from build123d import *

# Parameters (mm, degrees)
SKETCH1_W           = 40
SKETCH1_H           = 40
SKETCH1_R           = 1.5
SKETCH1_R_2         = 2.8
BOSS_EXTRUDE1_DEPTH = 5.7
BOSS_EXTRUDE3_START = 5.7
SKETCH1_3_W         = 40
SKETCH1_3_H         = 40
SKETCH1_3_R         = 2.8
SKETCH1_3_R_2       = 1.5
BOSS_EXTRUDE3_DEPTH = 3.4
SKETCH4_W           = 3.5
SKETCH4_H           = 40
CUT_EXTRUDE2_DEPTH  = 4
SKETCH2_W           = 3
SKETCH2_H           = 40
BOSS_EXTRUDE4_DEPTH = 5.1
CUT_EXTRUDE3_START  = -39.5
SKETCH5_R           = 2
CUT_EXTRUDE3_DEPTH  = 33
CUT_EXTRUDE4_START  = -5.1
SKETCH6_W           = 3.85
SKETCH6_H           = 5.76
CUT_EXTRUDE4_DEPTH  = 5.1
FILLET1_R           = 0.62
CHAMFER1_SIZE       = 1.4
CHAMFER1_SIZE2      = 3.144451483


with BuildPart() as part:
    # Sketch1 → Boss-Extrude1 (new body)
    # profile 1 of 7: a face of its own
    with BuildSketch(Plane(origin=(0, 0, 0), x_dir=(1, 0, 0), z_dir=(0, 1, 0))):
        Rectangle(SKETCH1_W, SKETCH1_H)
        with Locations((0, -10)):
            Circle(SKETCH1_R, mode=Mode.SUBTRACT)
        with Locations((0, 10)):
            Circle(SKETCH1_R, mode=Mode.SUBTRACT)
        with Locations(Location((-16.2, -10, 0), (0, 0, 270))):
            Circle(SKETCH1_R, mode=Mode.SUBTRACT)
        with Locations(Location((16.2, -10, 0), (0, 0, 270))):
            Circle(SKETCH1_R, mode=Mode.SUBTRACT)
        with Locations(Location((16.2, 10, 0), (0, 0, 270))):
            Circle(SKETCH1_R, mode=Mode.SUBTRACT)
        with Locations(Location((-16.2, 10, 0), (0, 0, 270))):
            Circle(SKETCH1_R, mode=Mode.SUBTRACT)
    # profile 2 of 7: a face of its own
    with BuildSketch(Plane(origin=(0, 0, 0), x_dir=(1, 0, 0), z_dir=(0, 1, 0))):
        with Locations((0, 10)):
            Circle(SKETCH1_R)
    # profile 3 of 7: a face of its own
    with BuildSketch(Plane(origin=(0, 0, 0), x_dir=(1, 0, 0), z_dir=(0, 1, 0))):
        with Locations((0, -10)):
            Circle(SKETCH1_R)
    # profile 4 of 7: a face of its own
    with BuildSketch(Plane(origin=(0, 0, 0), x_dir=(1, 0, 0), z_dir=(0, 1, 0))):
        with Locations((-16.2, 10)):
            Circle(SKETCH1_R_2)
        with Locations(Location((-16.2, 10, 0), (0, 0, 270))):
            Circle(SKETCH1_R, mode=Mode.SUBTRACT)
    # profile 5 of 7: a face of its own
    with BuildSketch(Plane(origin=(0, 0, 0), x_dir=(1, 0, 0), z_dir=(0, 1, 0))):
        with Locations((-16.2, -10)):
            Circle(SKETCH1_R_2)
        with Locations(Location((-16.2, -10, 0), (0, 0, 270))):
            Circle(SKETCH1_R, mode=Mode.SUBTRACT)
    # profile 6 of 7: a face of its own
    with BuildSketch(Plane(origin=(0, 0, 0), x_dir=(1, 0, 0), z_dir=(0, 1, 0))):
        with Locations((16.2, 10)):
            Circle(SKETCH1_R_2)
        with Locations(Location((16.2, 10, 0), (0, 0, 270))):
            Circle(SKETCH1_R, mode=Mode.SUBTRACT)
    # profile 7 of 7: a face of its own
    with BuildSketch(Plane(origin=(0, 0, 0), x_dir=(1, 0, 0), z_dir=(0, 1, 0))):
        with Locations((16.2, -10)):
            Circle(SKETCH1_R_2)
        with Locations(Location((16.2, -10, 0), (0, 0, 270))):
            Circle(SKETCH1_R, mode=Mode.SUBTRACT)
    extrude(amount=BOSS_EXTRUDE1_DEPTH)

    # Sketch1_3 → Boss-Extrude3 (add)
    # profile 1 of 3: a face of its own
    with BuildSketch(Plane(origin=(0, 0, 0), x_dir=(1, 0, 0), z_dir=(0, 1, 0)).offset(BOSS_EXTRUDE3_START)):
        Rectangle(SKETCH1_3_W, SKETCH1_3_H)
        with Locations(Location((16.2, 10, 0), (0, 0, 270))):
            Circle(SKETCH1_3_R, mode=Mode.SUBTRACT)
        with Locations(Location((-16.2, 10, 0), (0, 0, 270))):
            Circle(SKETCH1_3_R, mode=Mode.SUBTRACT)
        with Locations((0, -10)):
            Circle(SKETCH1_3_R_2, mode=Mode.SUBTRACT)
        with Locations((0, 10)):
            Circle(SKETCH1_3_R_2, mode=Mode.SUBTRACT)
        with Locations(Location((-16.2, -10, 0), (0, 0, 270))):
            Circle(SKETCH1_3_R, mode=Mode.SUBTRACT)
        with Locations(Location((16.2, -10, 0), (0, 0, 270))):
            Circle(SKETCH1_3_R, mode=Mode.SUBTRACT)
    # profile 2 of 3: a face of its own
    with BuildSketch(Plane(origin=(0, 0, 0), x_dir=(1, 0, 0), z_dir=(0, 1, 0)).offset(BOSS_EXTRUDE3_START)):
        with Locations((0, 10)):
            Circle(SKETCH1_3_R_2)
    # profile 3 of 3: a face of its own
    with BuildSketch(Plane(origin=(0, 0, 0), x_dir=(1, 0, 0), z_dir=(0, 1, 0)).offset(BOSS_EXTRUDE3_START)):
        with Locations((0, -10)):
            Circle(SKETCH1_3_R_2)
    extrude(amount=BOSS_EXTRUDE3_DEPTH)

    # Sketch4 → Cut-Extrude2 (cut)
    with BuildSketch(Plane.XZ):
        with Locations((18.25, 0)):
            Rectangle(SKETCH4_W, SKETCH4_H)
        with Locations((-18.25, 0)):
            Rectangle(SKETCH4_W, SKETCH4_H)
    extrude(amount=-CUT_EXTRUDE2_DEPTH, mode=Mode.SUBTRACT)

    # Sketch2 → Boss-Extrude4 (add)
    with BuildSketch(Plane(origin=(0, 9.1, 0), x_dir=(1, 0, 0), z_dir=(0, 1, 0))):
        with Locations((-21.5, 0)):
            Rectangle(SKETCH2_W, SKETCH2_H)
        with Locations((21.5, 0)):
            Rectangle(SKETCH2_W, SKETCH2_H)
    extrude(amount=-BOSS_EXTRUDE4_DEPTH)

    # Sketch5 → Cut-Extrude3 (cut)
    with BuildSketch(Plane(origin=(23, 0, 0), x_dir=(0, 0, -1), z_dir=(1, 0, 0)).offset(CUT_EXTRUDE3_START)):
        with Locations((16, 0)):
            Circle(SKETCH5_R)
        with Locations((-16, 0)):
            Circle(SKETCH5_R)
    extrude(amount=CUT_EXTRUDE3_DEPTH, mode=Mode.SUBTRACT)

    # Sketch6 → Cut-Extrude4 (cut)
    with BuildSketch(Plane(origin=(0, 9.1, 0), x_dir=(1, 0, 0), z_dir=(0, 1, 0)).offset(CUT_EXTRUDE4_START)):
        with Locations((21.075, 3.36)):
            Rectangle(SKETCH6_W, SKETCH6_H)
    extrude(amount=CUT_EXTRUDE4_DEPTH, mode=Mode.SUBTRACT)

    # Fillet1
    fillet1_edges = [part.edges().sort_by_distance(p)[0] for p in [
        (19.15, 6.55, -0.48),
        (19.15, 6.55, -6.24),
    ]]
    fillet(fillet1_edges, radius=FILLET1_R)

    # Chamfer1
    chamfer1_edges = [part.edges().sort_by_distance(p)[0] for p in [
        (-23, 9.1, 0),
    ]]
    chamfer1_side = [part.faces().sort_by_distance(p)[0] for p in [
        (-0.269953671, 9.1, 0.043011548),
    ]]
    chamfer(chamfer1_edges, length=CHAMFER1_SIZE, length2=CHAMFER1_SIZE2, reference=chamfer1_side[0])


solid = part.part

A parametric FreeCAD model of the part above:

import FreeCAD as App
import Part
import Sketcher
Q = App.Units.Quantity


def edges_at(feature, points):
    """Names of the edges that pass closest to the given points."""
    edges = feature.Shape.Edges
    near = lambda p: min(range(len(edges)), key=lambda i: edges[i].distToShape(Part.Vertex(*p))[0])
    return sorted({f"Edge{near(p) + 1}" for p in points})


def add_polygon(sketch, points):
    """Adds a closed chain of lines whose ends are joined by coincident constraints."""
    first, n = sketch.GeometryCount, len(points)
    for a, b in zip(points, points[1:] + points[:1]):
        sketch.addGeometry(Part.LineSegment(App.Vector(*a, 0), App.Vector(*b, 0)), False)
    for i in range(n):
        sketch.addConstraint(Sketcher.Constraint("Coincident", first + i, 2, first + (i + 1) % n, 1))

doc = App.newDocument("Part")
body = doc.addObject("PartDesign::Body", "Body")

sketch1 = body.newObject("Sketcher::SketchObject", "Sketch")
sketch1.AttachmentSupport = (doc.getObject("XZ_Plane"), [""])
sketch1.MapMode = "FlatFace"
add_polygon(sketch1, [(-20, -20), (-20, 20), (20, 20), (20, -20)])
sketch1.addGeometry(Part.Circle(App.Vector(-16.2, 10, 0), App.Vector(0, 0, 1), 1.5), False)
sketch1.addGeometry(Part.Circle(App.Vector(16.2, 10, 0), App.Vector(0, 0, 1), 1.5), False)
sketch1.addGeometry(Part.Circle(App.Vector(-16.2, -10, 0), App.Vector(0, 0, 1), 1.5), False)
sketch1.addGeometry(Part.Circle(App.Vector(16.2, -10, 0), App.Vector(0, 0, 1), 1.5), False)
sketch1.addConstraint([
    Sketcher.Constraint("Vertical", 0),
    Sketcher.Constraint("Horizontal", 1),
    Sketcher.Constraint("Vertical", 2),
    Sketcher.Constraint("Horizontal", 3),
    Sketcher.Constraint("Equal", 4, 5),
    Sketcher.Constraint("Equal", 5, 6),
    Sketcher.Constraint("Equal", 6, 7),
    Sketcher.Constraint("Symmetric", 5, 3, 6, 3, -1, 1),
    Sketcher.Constraint("Symmetric", 4, 3, 7, 3, -1, 1),
    Sketcher.Constraint("Symmetric", 0, 2, 2, 2, -1, 1),
    Sketcher.Constraint("Symmetric", 4, 3, 5, 3, -2),
    Sketcher.Constraint("Equal", 3, 0),
    Sketcher.Constraint("Diameter", 4, Q("3 mm")),
    Sketcher.Constraint("DistanceX", 1, 1, 1, 2, Q("40 mm")),
    Sketcher.Constraint("DistanceY", -1, 1, 4, 3, Q("10 mm")),
    Sketcher.Constraint("DistanceX", 4, 3, -1, 1, Q("16.2 mm")),
])
pad1 = body.newObject("PartDesign::Pad", "Pad")
pad1.Profile = sketch1
pad1.Length = 5.7
pad1.Reversed = True

sketch2 = body.newObject("Sketcher::SketchObject", "Sketch001")
sketch2.AttachmentSupport = (doc.getObject("XZ_Plane"), [""])
sketch2.MapMode = "FlatFace"
sketch2.AttachmentOffset = App.Placement(App.Vector(0, 0, -5.7), App.Rotation())
add_polygon(sketch2, [(-20, -20), (-20, 20), (20, 20), (20, -20)])
sketch2.addGeometry(Part.Circle(App.Vector(-16.2, 10, 0), App.Vector(0, 0, 1), 2.8), False)
sketch2.addGeometry(Part.Circle(App.Vector(16.2, 10, 0), App.Vector(0, 0, 1), 2.8), False)
sketch2.addGeometry(Part.Circle(App.Vector(-16.2, -10, 0), App.Vector(0, 0, 1), 2.8), False)
sketch2.addGeometry(Part.Circle(App.Vector(16.2, -10, 0), App.Vector(0, 0, 1), 2.8), False)
sketch2.addConstraint([
    Sketcher.Constraint("Vertical", 0),
    Sketcher.Constraint("Horizontal", 1),
    Sketcher.Constraint("Vertical", 2),
    Sketcher.Constraint("Horizontal", 3),
    Sketcher.Constraint("Equal", 4, 5),
    Sketcher.Constraint("Equal", 5, 6),
    Sketcher.Constraint("Equal", 6, 7),
    Sketcher.Constraint("Symmetric", 5, 3, 6, 3, -1, 1),
    Sketcher.Constraint("Symmetric", 4, 3, 7, 3, -1, 1),
    Sketcher.Constraint("Symmetric", 0, 2, 2, 2, -1, 1),
    Sketcher.Constraint("Symmetric", 4, 3, 5, 3, -2),
    Sketcher.Constraint("Equal", 3, 0),
    Sketcher.Constraint("Diameter", 4, Q("5.6 mm")),
    Sketcher.Constraint("DistanceX", 1, 1, 1, 2, Q("40 mm")),
    Sketcher.Constraint("DistanceY", -1, 1, 4, 3, Q("10 mm")),
    Sketcher.Constraint("DistanceX", 4, 3, -1, 1, Q("16.2 mm")),
])
pad2 = body.newObject("PartDesign::Pad", "Pad001")
pad2.Profile = sketch2
pad2.Length = 3.4
pad2.Reversed = True

sketch3 = body.newObject("Sketcher::SketchObject", "Sketch002")
sketch3.AttachmentSupport = (doc.getObject("XZ_Plane"), [""])
sketch3.MapMode = "FlatFace"
add_polygon(sketch3, [(16.5, 20), (16.5, -20), (20, -20), (20, 20)])
add_polygon(sketch3, [(-20, 20), (-20, -20), (-16.5, -20), (-16.5, 20)])
sketch3.addConstraint([
    Sketcher.Constraint("Vertical", 0),
    Sketcher.Constraint("Horizontal", 1),
    Sketcher.Constraint("Vertical", 2),
    Sketcher.Constraint("Horizontal", 3),
    Sketcher.Constraint("Vertical", 4),
    Sketcher.Constraint("Horizontal", 5),
    Sketcher.Constraint("Vertical", 6),
    Sketcher.Constraint("Horizontal", 7),
    Sketcher.Constraint("Symmetric", 2, 2, 4, 2, -1, 1),
    Sketcher.Constraint("Symmetric", 0, 2, 6, 2, -1, 1),
    Sketcher.Constraint("Horizontal", 1, 2, 4, 2),
    Sketcher.Constraint("DistanceY", 0, 2, 0, 1, Q("40 mm")),
    Sketcher.Constraint("DistanceX", 1, 1, 1, 2, Q("3.5 mm")),
    Sketcher.Constraint("DistanceX", -1, 1, 1, 2, Q("20 mm")),
])
pocket1 = body.newObject("PartDesign::Pocket", "Pocket")
pocket1.Profile = sketch3
pocket1.Length = 4

sketch4 = body.newObject("Sketcher::SketchObject", "Sketch003")
sketch4.AttachmentSupport = (doc.getObject("XZ_Plane"), [""])
sketch4.MapMode = "FlatFace"
sketch4.AttachmentOffset = App.Placement(App.Vector(0, 0, -9.1), App.Rotation())
add_polygon(sketch4, [(-23, -20), (-23, 20), (-20, 20), (-20, -20)])
add_polygon(sketch4, [(20, -20), (20, 20), (23, 20), (23, -20)])
sketch4.addConstraint([
    Sketcher.Constraint("Vertical", 0),
    Sketcher.Constraint("Horizontal", 1),
    Sketcher.Constraint("Vertical", 2),
    Sketcher.Constraint("Horizontal", 3),
    Sketcher.Constraint("Vertical", 4),
    Sketcher.Constraint("Horizontal", 5),
    Sketcher.Constraint("Vertical", 6),
    Sketcher.Constraint("Horizontal", 7),
    Sketcher.Constraint("Symmetric", 2, 2, 4, 2, -1, 1),
    Sketcher.Constraint("Symmetric", 0, 2, 6, 2, -1, 1),
    Sketcher.Constraint("Horizontal", 1, 2, 4, 2),
    Sketcher.Constraint("DistanceX", 1, 1, 1, 2, Q("3 mm")),
    Sketcher.Constraint("DistanceY", 0, 1, 0, 2, Q("40 mm")),
    Sketcher.Constraint("DistanceX", 0, 2, -1, 1, Q("23 mm")),
])
pad3 = body.newObject("PartDesign::Pad", "Pad002")
pad3.Profile = sketch4
pad3.Length = 5.1

sketch5 = body.newObject("Sketcher::SketchObject", "Sketch004")
sketch5.AttachmentSupport = (doc.getObject("YZ_Plane"), [""])
sketch5.MapMode = "FlatFace"
sketch5.AttachmentOffset = App.Placement(App.Vector(0, 0, -16.5), App.Rotation())
sketch5.addGeometry([
    Part.Circle(App.Vector(0, -16, 0), App.Vector(0, 0, 1), 2),
    Part.Circle(App.Vector(0, 16, 0), App.Vector(0, 0, 1), 2),
], False)
sketch5.addConstraint([
    Sketcher.Constraint("Equal", 0, 1),
    Sketcher.Constraint("Symmetric", 0, 3, 1, 3, -1, 1),
    Sketcher.Constraint("PointOnObject", 0, 3, -2),
    Sketcher.Constraint("Diameter", 0, Q("4 mm")),
    Sketcher.Constraint("DistanceY", 0, 3, -1, 1, Q("16 mm")),
])
pocket2 = body.newObject("PartDesign::Pocket", "Pocket001")
pocket2.Profile = sketch5
pocket2.Length = 33
pocket2.Reversed = True

sketch6 = body.newObject("Sketcher::SketchObject", "Sketch005")
sketch6.AttachmentSupport = (doc.getObject("XZ_Plane"), [""])
sketch6.MapMode = "FlatFace"
sketch6.AttachmentOffset = App.Placement(App.Vector(0, 0, -4), App.Rotation())
add_polygon(sketch6, [(19.1, -6.2), (19.1, -0.5), (23, -0.5), (23, -6.2)])
sketch6.addConstraint([
    Sketcher.Constraint("Vertical", 0),
    Sketcher.Constraint("Horizontal", 1),
    Sketcher.Constraint("Vertical", 2),
    Sketcher.Constraint("Horizontal", 3),
    Sketcher.Constraint("DistanceX", -1, 1, 1, 2, Q("23 mm")),
    Sketcher.Constraint("DistanceX", 1, 1, 1, 2, Q("3.85 mm")),
    Sketcher.Constraint("DistanceY", 0, 1, 0, 2, Q("5.76 mm")),
    Sketcher.Constraint("DistanceY", 0, 2, -1, 1, Q("0.48 mm")),
])
pocket3 = body.newObject("PartDesign::Pocket", "Pocket002")
pocket3.Profile = sketch6
pocket3.Length = 5.1
doc.recompute()

fillet = body.newObject("PartDesign::Fillet", "Fillet")
fillet.Base = (pocket3, edges_at(pocket3, [(19.15, 6.55, -0.48), (19.15, 6.55, -6.24)]))
fillet.Radius = 0.62
doc.recompute()

chamfer = body.newObject("PartDesign::Chamfer", "Chamfer")
chamfer.Base = (fillet, edges_at(fillet, [(-23, 9.1, 0)]))
chamfer.ChamferType = "Two distances"
chamfer.Size = 1.4
chamfer.Size2 = 3.144451

doc.recompute()
